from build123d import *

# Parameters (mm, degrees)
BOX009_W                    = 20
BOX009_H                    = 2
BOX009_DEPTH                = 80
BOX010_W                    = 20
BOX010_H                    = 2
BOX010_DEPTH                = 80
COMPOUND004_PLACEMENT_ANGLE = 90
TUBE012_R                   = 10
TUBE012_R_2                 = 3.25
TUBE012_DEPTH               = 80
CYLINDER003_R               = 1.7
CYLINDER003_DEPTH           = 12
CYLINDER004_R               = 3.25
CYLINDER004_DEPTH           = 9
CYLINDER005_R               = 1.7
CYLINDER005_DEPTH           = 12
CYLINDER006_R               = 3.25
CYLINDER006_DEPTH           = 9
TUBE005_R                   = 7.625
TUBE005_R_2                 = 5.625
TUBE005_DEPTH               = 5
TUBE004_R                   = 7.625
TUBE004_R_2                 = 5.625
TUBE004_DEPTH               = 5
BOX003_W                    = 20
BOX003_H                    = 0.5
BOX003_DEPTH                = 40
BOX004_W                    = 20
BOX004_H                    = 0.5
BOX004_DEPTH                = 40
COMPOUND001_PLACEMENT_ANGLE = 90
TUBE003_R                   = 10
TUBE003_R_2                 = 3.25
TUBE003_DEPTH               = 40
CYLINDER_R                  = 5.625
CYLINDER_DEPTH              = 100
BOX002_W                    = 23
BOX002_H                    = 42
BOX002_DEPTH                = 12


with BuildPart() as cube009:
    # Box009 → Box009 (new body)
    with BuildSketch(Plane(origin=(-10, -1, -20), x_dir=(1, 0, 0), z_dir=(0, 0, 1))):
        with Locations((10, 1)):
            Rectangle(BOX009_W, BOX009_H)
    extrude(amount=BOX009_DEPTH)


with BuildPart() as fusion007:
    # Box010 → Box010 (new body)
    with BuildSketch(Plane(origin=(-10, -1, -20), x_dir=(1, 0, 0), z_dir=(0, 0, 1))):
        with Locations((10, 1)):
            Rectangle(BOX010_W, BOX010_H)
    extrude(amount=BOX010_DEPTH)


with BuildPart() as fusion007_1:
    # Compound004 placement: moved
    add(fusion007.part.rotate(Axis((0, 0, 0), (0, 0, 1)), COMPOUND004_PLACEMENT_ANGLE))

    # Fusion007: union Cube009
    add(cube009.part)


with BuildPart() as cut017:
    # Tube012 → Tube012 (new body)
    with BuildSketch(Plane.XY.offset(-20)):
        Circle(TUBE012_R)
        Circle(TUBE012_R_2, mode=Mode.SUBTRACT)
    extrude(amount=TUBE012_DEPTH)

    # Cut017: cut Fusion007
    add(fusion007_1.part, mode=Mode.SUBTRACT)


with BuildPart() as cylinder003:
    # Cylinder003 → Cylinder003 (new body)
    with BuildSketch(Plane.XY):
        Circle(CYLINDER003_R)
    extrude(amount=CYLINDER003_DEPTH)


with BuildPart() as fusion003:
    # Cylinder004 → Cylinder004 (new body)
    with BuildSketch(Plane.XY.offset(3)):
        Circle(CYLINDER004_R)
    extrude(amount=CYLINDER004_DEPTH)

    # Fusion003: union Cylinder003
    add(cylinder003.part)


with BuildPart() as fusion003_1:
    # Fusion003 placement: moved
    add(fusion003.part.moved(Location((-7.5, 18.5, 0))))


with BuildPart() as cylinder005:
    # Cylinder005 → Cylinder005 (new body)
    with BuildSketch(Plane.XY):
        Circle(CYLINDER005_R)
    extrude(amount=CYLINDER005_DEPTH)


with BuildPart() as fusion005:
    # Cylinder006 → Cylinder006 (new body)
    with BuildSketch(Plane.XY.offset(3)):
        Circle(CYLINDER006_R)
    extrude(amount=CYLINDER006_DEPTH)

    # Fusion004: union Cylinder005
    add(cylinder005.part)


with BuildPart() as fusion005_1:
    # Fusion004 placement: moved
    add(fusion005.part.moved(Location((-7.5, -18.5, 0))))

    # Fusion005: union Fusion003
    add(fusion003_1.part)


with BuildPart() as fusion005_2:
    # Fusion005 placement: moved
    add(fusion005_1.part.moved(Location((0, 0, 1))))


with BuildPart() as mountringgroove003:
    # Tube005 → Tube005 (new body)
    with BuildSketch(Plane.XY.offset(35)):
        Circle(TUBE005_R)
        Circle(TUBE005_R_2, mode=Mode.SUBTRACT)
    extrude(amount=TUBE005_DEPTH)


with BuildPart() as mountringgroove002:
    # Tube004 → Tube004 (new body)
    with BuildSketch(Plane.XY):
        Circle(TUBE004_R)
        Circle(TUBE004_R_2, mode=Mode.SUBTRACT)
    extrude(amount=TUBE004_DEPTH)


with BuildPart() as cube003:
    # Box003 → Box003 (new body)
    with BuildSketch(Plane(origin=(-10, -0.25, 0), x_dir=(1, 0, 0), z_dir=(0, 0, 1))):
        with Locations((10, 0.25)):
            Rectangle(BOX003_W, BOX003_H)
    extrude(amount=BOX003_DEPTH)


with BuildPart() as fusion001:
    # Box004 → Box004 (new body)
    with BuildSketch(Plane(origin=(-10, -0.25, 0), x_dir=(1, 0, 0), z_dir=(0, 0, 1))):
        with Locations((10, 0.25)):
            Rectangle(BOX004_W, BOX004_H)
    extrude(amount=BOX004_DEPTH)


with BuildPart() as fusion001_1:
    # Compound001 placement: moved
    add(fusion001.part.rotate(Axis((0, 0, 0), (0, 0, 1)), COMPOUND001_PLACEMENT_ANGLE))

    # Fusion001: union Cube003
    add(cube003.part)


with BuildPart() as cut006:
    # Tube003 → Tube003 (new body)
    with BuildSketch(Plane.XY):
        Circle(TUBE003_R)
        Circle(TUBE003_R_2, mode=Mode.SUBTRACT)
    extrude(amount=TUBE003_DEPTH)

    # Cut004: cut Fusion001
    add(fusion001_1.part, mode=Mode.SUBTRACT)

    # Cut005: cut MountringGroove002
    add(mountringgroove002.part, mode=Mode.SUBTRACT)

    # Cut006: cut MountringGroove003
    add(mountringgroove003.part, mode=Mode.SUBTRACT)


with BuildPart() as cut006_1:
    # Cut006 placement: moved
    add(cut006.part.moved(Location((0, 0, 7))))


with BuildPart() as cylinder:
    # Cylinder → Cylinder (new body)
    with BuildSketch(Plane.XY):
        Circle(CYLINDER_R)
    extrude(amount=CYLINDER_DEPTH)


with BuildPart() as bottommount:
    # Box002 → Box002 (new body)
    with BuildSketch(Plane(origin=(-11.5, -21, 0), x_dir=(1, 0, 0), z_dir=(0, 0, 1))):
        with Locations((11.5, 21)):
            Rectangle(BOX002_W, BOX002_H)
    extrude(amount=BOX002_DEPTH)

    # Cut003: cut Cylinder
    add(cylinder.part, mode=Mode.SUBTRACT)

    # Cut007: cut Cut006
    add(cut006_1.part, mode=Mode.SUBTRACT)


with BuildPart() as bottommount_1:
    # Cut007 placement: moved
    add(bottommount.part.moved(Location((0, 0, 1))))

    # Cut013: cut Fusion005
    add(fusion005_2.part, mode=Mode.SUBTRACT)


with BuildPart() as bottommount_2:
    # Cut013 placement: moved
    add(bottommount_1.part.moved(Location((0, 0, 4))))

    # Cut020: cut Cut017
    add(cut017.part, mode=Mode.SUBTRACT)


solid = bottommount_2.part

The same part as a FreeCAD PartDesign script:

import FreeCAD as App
import Part
import Sketcher

V = App.Vector

doc = App.newDocument("Part")
body = doc.addObject("PartDesign::Body", "Body")

sketch1 = doc.addObject("Sketcher::SketchObject", "Sketch")
body.addObject(sketch1)
sketch1.AttachmentSupport = (doc.XY_Plane, [""])
sketch1.MapMode = "FlatFace"
sketch1.AttachmentOffset = App.Placement(V(0, 0, -20), App.Rotation())
sketch1.addGeometry([
    Part.LineSegment(V(-10, 1, 0), V(-10, -1, 0)),
    Part.LineSegment(V(-10, -1, 0), V(10, -1, 0)),
    Part.LineSegment(V(10, -1, 0), V(10, 1, 0)),
    Part.LineSegment(V(10, 1, 0), V(-10, 1, 0)),
], False)
sketch1.addConstraint([
    Sketcher.Constraint("Coincident", 0, 2, 1, 1),
    Sketcher.Constraint("Coincident", 1, 2, 2, 1),
    Sketcher.Constraint("Coincident", 2, 2, 3, 1),
    Sketcher.Constraint("Coincident", 3, 2, 0, 1),
    Sketcher.Constraint("Vertical", 0),
    Sketcher.Constraint("Horizontal", 1),
    Sketcher.Constraint("Vertical", 2),
    Sketcher.Constraint("Horizontal", 3),
    Sketcher.Constraint("Symmetric", 0, 2, 2, 2, -1, 1),
    Sketcher.Constraint("DistanceX", 1, 1, 1, 2, 20.0),
    Sketcher.Constraint("DistanceY", 0, 2, 0, 1, 2.0),
])
pad1 = doc.addObject("PartDesign::Pad", "Pad")
body.addObject(pad1)
pad1.Profile = sketch1
pad1.Length = 80
body2 = doc.addObject("PartDesign::Body", "Body001")

sketch2 = doc.addObject("Sketcher::SketchObject", "Sketch001")
body2.addObject(sketch2)
sketch2.AttachmentSupport = (doc.getObject("XY_Plane001"), [""])
sketch2.MapMode = "FlatFace"
sketch2.AttachmentOffset = App.Placement(V(0, 0, -20), App.Rotation())
sketch2.addGeometry([
    Part.LineSegment(V(-10, 1, 0), V(-10, -1, 0)),
    Part.LineSegment(V(-10, -1, 0), V(10, -1, 0)),
    Part.LineSegment(V(10, -1, 0), V(10, 1, 0)),
    Part.LineSegment(V(10, 1, 0), V(-10, 1, 0)),
], False)
sketch2.addConstraint([
    Sketcher.Constraint("Coincident", 0, 2, 1, 1),
    Sketcher.Constraint("Coincident", 1, 2, 2, 1),
    Sketcher.Constraint("Coincident", 2, 2, 3, 1),
    Sketcher.Constraint("Coincident", 3, 2, 0, 1),
    Sketcher.Constraint("Vertical", 0),
    Sketcher.Constraint("Horizontal", 1),
    Sketcher.Constraint("Vertical", 2),
    Sketcher.Constraint("Horizontal", 3),
    Sketcher.Constraint("Symmetric", 0, 2, 2, 2, -1, 1),
    Sketcher.Constraint("DistanceX", 1, 1, 1, 2, 20.0),
    Sketcher.Constraint("DistanceY", 0, 2, 0, 1, 2.0),
])
pad2 = doc.addObject("PartDesign::Pad", "Pad001")
body2.addObject(pad2)
pad2.Profile = sketch2
pad2.Length = 80
body3 = doc.addObject("PartDesign::Body", "Body002")
doc.recompute()

body2.Placement = App.Placement(V(0, 0, 0), App.Rotation(V(0, 0, 1), 90))
boolean = doc.addObject("PartDesign::Boolean", "Boolean")
body3.addObject(boolean)
boolean.Type = "Fuse"
boolean.addObjects([body2])
doc.recompute()

boolean2 = doc.addObject("PartDesign::Boolean", "Boolean001")
body3.addObject(boolean2)
boolean2.Type = "Fuse"
boolean2.addObjects([body])
body4 = doc.addObject("PartDesign::Body", "Body003")
body4.AllowCompound = True

sketch3 = doc.addObject("Sketcher::SketchObject", "Sketch002")
body4.addObject(sketch3)
sketch3.AttachmentSupport = (doc.getObject("XY_Plane003"), [""])
sketch3.MapMode = "FlatFace"
sketch3.AttachmentOffset = App.Placement(V(0, 0, -20), App.Rotation())
sketch3.addGeometry([
    Part.Circle(V(0, 0, 0), V(0, 0, 1), 10),
    Part.Circle(V(0, 0, 0), V(0, 0, 1), 3.25),
], False)
sketch3.addConstraint([
    Sketcher.Constraint("Coincident", 0, 3, -1, 1),
    Sketcher.Constraint("Coincident", 1, 3, -1, 1),
    Sketcher.Constraint("Diameter", 0, 20.0),
    Sketcher.Constraint("Diameter", 1, 6.5),
])
pad3 = doc.addObject("PartDesign::Pad", "Pad002")
body4.addObject(pad3)
pad3.Profile = sketch3
pad3.Length = 80
doc.recompute()

boolean3 = doc.addObject("PartDesign::Boolean", "Boolean002")
body4.addObject(boolean3)
boolean3.Type = "Cut"
boolean3.addObjects([body3])
body5 = doc.addObject("PartDesign::Body", "Body004")

sketch4 = doc.addObject("Sketcher::SketchObject", "Sketch003")
body5.addObject(sketch4)
sketch4.AttachmentSupport = (doc.getObject("XY_Plane004"), [""])
sketch4.MapMode = "FlatFace"
sketch4.addGeometry(Part.Circle(V(0, 0, 0), V(0, 0, 1), 1.7), False)
sketch4.addConstraint([
    Sketcher.Constraint("Coincident", 0, 3, -1, 1),
    Sketcher.Constraint("Diameter", 0, 3.4),
])
pad4 = doc.addObject("PartDesign::Pad", "Pad003")
body5.addObject(pad4)
pad4.Profile = sketch4
pad4.Length = 12
body6 = doc.addObject("PartDesign::Body", "Body005")

sketch5 = doc.addObject("Sketcher::SketchObject", "Sketch004")
body6.addObject(sketch5)
sketch5.AttachmentSupport = (doc.getObject("XY_Plane005"), [""])
sketch5.MapMode = "FlatFace"
sketch5.AttachmentOffset = App.Placement(V(0, 0, 3), App.Rotation())
sketch5.addGeometry(Part.Circle(V(0, 0, 0), V(0, 0, 1), 3.25), False)
sketch5.addConstraint([
    Sketcher.Constraint("Coincident", 0, 3, -1, 1),
    Sketcher.Constraint("Diameter", 0, 6.5),
])
pad5 = doc.addObject("PartDesign::Pad", "Pad004")
body6.addObject(pad5)
pad5.Profile = sketch5
pad5.Length = 9
doc.recompute()

boolean4 = doc.addObject("PartDesign::Boolean", "Boolean003")
body6.addObject(boolean4)
boolean4.Type = "Fuse"
boolean4.addObjects([body5])
body7 = doc.addObject("PartDesign::Body", "Body006")
doc.recompute()

body6.Placement = App.Placement(V(-7.5, 18.5, 0), App.Rotation(V(0, 0, 1), 0))
boolean5 = doc.addObject("PartDesign::Boolean", "Boolean004")
body7.addObject(boolean5)
boolean5.Type = "Fuse"
boolean5.addObjects([body6])
body8 = doc.addObject("PartDesign::Body", "Body007")

sketch6 = doc.addObject("Sketcher::SketchObject", "Sketch005")
body8.addObject(sketch6)
sketch6.AttachmentSupport = (doc.getObject("XY_Plane007"), [""])
sketch6.MapMode = "FlatFace"
sketch6.addGeometry(Part.Circle(V(0, 0, 0), V(0, 0, 1), 1.7), False)
sketch6.addConstraint([
    Sketcher.Constraint("Coincident", 0, 3, -1, 1),
    Sketcher.Constraint("Diameter", 0, 3.4),
])
pad6 = doc.addObject("PartDesign::Pad", "Pad005")
body8.addObject(pad6)
pad6.Profile = sketch6
pad6.Length = 12
body9 = doc.addObject("PartDesign::Body", "Body008")

sketch7 = doc.addObject("Sketcher::SketchObject", "Sketch006")
body9.addObject(sketch7)
sketch7.AttachmentSupport = (doc.getObject("XY_Plane008"), [""])
sketch7.MapMode = "FlatFace"
sketch7.AttachmentOffset = App.Placement(V(0, 0, 3), App.Rotation())
sketch7.addGeometry(Part.Circle(V(0, 0, 0), V(0, 0, 1), 3.25), False)
sketch7.addConstraint([
    Sketcher.Constraint("Coincident", 0, 3, -1, 1),
    Sketcher.Constraint("Diameter", 0, 6.5),
])
pad7 = doc.addObject("PartDesign::Pad", "Pad006")
body9.addObject(pad7)
pad7.Profile = sketch7
pad7.Length = 9
doc.recompute()

boolean6 = doc.addObject("PartDesign::Boolean", "Boolean005")
body9.addObject(boolean6)
boolean6.Type = "Fuse"
boolean6.addObjects([body8])
body10 = doc.addObject("PartDesign::Body", "Body009")
body10.AllowCompound = True
doc.recompute()

body9.Placement = App.Placement(V(-7.5, -18.5, 0), App.Rotation(V(0, 0, 1), 0))
boolean7 = doc.addObject("PartDesign::Boolean", "Boolean006")
body10.addObject(boolean7)
boolean7.Type = "Fuse"
boolean7.addObjects([body9])
doc.recompute()

boolean8 = doc.addObject("PartDesign::Boolean", "Boolean007")
body10.addObject(boolean8)
boolean8.Type = "Fuse"
boolean8.addObjects([body7])
body11 = doc.addObject("PartDesign::Body", "Body010")
body11.AllowCompound = True
doc.recompute()

body10.Placement = App.Placement(V(0, 0, 1), App.Rotation(V(0, 0, 1), 0))
boolean9 = doc.addObject("PartDesign::Boolean", "Boolean008")
body11.addObject(boolean9)
boolean9.Type = "Fuse"
boolean9.addObjects([body10])
body12 = doc.addObject("PartDesign::Body", "Body011")

sketch8 = doc.addObject("Sketcher::SketchObject", "Sketch007")
body12.addObject(sketch8)
sketch8.AttachmentSupport = (doc.getObject("XY_Plane011"), [""])
sketch8.MapMode = "FlatFace"
sketch8.AttachmentOffset = App.Placement(V(0, 0, 35), App.Rotation())
sketch8.addGeometry([
    Part.Circle(V(0, 0, 0), V(0, 0, 1), 7.625),
    Part.Circle(V(0, 0, 0), V(0, 0, 1), 5.625),
], False)
sketch8.addConstraint([
    Sketcher.Constraint("Coincident", 0, 3, -1, 1),
    Sketcher.Constraint("Coincident", 1, 3, -1, 1),
    Sketcher.Constraint("Diameter", 0, 15.25),
    Sketcher.Constraint("Diameter", 1, 11.25),
])
pad8 = doc.addObject("PartDesign::Pad", "Pad007")
body12.addObject(pad8)
pad8.Profile = sketch8
pad8.Length = 5
body13 = doc.addObject("PartDesign::Body", "Body012")

sketch9 = doc.addObject("Sketcher::SketchObject", "Sketch008")
body13.addObject(sketch9)
sketch9.AttachmentSupport = (doc.getObject("XY_Plane012"), [""])
sketch9.MapMode = "FlatFace"
sketch9.addGeometry([
    Part.Circle(V(0, 0, 0), V(0, 0, 1), 7.625),
    Part.Circle(V(0, 0, 0), V(0, 0, 1), 5.625),
], False)
sketch9.addConstraint([
    Sketcher.Constraint("Coincident", 0, 3, -1, 1),
    Sketcher.Constraint("Coincident", 1, 3, -1, 1),
    Sketcher.Constraint("Diameter", 0, 15.25),
    Sketcher.Constraint("Diameter", 1, 11.25),
])
pad9 = doc.addObject("PartDesign::Pad", "Pad008")
body13.addObject(pad9)
pad9.Profile = sketch9
pad9.Length = 5
body14 = doc.addObject("PartDesign::Body", "Body013")

sketch10 = doc.addObject("Sketcher::SketchObject", "Sketch009")
body14.addObject(sketch10)
sketch10.AttachmentSupport = (doc.getObject("XY_Plane013"), [""])
sketch10.MapMode = "FlatFace"
sketch10.addGeometry([
    Part.LineSegment(V(-10, 0.25, 0), V(-10, -0.25, 0)),
    Part.LineSegment(V(-10, -0.25, 0), V(10, -0.25, 0)),
    Part.LineSegment(V(10, -0.25, 0), V(10, 0.25, 0)),
    Part.LineSegment(V(10, 0.25, 0), V(-10, 0.25, 0)),
], False)
sketch10.addConstraint([
    Sketcher.Constraint("Coincident", 0, 2, 1, 1),
    Sketcher.Constraint("Coincident", 1, 2, 2, 1),
    Sketcher.Constraint("Coincident", 2, 2, 3, 1),
    Sketcher.Constraint("Coincident", 3, 2, 0, 1),
    Sketcher.Constraint("Vertical", 0),
    Sketcher.Constraint("Horizontal", 1),
    Sketcher.Constraint("Vertical", 2),
    Sketcher.Constraint("Horizontal", 3),
    Sketcher.Constraint("Symmetric", 0, 2, 2, 2, -1, 1),
    Sketcher.Constraint("DistanceX", 1, 1, 1, 2, 20.0),
    Sketcher.Constraint("DistanceY", 0, 2, 0, 1, 0.5),
])
pad10 = doc.addObject("PartDesign::Pad", "Pad009")
body14.addObject(pad10)
pad10.Profile = sketch10
pad10.Length = 40
body15 = doc.addObject("PartDesign::Body", "Body014")

sketch11 = doc.addObject("Sketcher::SketchObject", "Sketch010")
body15.addObject(sketch11)
sketch11.AttachmentSupport = (doc.getObject("XY_Plane014"), [""])
sketch11.MapMode = "FlatFace"
sketch11.addGeometry([
    Part.LineSegment(V(-10, 0.25, 0), V(-10, -0.25, 0)),
    Part.LineSegment(V(-10, -0.25, 0), V(10, -0.25, 0)),
    Part.LineSegment(V(10, -0.25, 0), V(10, 0.25, 0)),
    Part.LineSegment(V(10, 0.25, 0), V(-10, 0.25, 0)),
], False)
sketch11.addConstraint([
    Sketcher.Constraint("Coincident", 0, 2, 1, 1),
    Sketcher.Constraint("Coincident", 1, 2, 2, 1),
    Sketcher.Constraint("Coincident", 2, 2, 3, 1),
    Sketcher.Constraint("Coincident", 3, 2, 0, 1),
    Sketcher.Constraint("Vertical", 0),
    Sketcher.Constraint("Horizontal", 1),
    Sketcher.Constraint("Vertical", 2),
    Sketcher.Constraint("Horizontal", 3),
    Sketcher.Constraint("Symmetric", 0, 2, 2, 2, -1, 1),
    Sketcher.Constraint("DistanceX", 1, 1, 1, 2, 20.0),
    Sketcher.Constraint("DistanceY", 0, 2, 0, 1, 0.5),
])
pad11 = doc.addObject("PartDesign::Pad", "Pad010")
body15.addObject(pad11)
pad11.Profile = sketch11
pad11.Length = 40
body16 = doc.addObject("PartDesign::Body", "Body015")
doc.recompute()

body15.Placement = App.Placement(V(0, 0, 0), App.Rotation(V(0, 0, 1), 90))
boolean10 = doc.addObject("PartDesign::Boolean", "Boolean009")
body16.addObject(boolean10)
boolean10.Type = "Fuse"
boolean10.addObjects([body15])
doc.recompute()

boolean11 = doc.addObject("PartDesign::Boolean", "Boolean010")
body16.addObject(boolean11)
boolean11.Type = "Fuse"
boolean11.addObjects([body14])
body17 = doc.addObject("PartDesign::Body", "Body016")
body17.AllowCompound = True

sketch12 = doc.addObject("Sketcher::SketchObject", "Sketch011")
body17.addObject(sketch12)
sketch12.AttachmentSupport = (doc.getObject("XY_Plane016"), [""])
sketch12.MapMode = "FlatFace"
sketch12.addGeometry([
    Part.Circle(V(0, 0, 0), V(0, 0, 1), 10),
    Part.Circle(V(0, 0, 0), V(0, 0, 1), 3.25),
], False)
sketch12.addConstraint([
    Sketcher.Constraint("Coincident", 0, 3, -1, 1),
    Sketcher.Constraint("Coincident", 1, 3, -1, 1),
    Sketcher.Constraint("Diameter", 0, 20.0),
    Sketcher.Constraint("Diameter", 1, 6.5),
])
pad12 = doc.addObject("PartDesign::Pad", "Pad011")
body17.addObject(pad12)
pad12.Profile = sketch12
pad12.Length = 40
doc.recompute()

boolean12 = doc.addObject("PartDesign::Boolean", "Boolean011")
body17.addObject(boolean12)
boolean12.Type = "Cut"
boolean12.addObjects([body16])
doc.recompute()

boolean13 = doc.addObject("PartDesign::Boolean", "Boolean012")
body17.addObject(boolean13)
boolean13.Type = "Cut"
boolean13.addObjects([body13])
doc.recompute()

boolean14 = doc.addObject("PartDesign::Boolean", "Boolean013")
body17.addObject(boolean14)
boolean14.Type = "Cut"
boolean14.addObjects([body12])
body18 = doc.addObject("PartDesign::Body", "Body017")
body18.AllowCompound = True
doc.recompute()

body17.Placement = App.Placement(V(0, 0, 7), App.Rotation(V(0, 0, 1), 0))
boolean15 = doc.addObject("PartDesign::Boolean", "Boolean014")
body18.addObject(boolean15)
boolean15.Type = "Fuse"
boolean15.addObjects([body17])
body19 = doc.addObject("PartDesign::Body", "Body018")

sketch13 = doc.addObject("Sketcher::SketchObject", "Sketch012")
body19.addObject(sketch13)
sketch13.AttachmentSupport = (doc.getObject("XY_Plane018"), [""])
sketch13.MapMode = "FlatFace"
sketch13.addGeometry(Part.Circle(V(0, 0, 0), V(0, 0, 1), 5.625), False)
sketch13.addConstraint([
    Sketcher.Constraint("Coincident", 0, 3, -1, 1),
    Sketcher.Constraint("Diameter", 0, 11.25),
])
pad13 = doc.addObject("PartDesign::Pad", "Pad012")
body19.addObject(pad13)
pad13.Profile = sketch13
pad13.Length = 100
body20 = doc.addObject("PartDesign::Body", "Body019")

sketch14 = doc.addObject("Sketcher::SketchObject", "Sketch013")
body20.addObject(sketch14)
sketch14.AttachmentSupport = (doc.getObject("XY_Plane019"), [""])
sketch14.MapMode = "FlatFace"
sketch14.addGeometry([
    Part.LineSegment(V(-11.5, 21, 0), V(-11.5, -21, 0)),
    Part.LineSegment(V(-11.5, -21, 0), V(11.5, -21, 0)),
    Part.LineSegment(V(11.5, -21, 0), V(11.5, 21, 0)),
    Part.LineSegment(V(11.5, 21, 0), V(-11.5, 21, 0)),
], False)
sketch14.addConstraint([
    Sketcher.Constraint("Coincident", 0, 2, 1, 1),
    Sketcher.Constraint("Coincident", 1, 2, 2, 1),
    Sketcher.Constraint("Coincident", 2, 2, 3, 1),
    Sketcher.Constraint("Coincident", 3, 2, 0, 1),
    Sketcher.Constraint("Vertical", 0),
    Sketcher.Constraint("Horizontal", 1),
    Sketcher.Constraint("Vertical", 2),
    Sketcher.Constraint("Horizontal", 3),
    Sketcher.Constraint("Symmetric", 0, 2, 2, 2, -1, 1),
    Sketcher.Constraint("DistanceX", 1, 1, 1, 2, 23.0),
    Sketcher.Constraint("DistanceY", 0, 2, 0, 1, 42.0),
])
pad14 = doc.addObject("PartDesign::Pad", "Pad013")
body20.addObject(pad14)
pad14.Profile = sketch14
pad14.Length = 12
doc.recompute()

boolean16 = doc.addObject("PartDesign::Boolean", "Boolean015")
body20.addObject(boolean16)
boolean16.Type = "Cut"
boolean16.addObjects([body19])
doc.recompute()

boolean17 = doc.addObject("PartDesign::Boolean", "Boolean016")
body20.addObject(boolean17)
boolean17.Type = "Cut"
boolean17.addObjects([body18])
body21 = doc.addObject("PartDesign::Body", "Body020")
doc.recompute()

body20.Placement = App.Placement(V(0, 0, 1), App.Rotation(V(0, 0, 1), 0))
boolean18 = doc.addObject("PartDesign::Boolean", "Boolean017")
body21.addObject(boolean18)
boolean18.Type = "Fuse"
boolean18.addObjects([body20])
doc.recompute()

boolean19 = doc.addObject("PartDesign::Boolean", "Boolean018")
body21.addObject(boolean19)
boolean19.Type = "Cut"
boolean19.addObjects([body11])
body22 = doc.addObject("PartDesign::Body", "Body021")
doc.recompute()

body21.Placement = App.Placement(V(0, 0, 4), App.Rotation(V(0, 0, 1), 0))
boolean20 = doc.addObject("PartDesign::Boolean", "Boolean019")
body22.addObject(boolean20)
boolean20.Type = "Fuse"
boolean20.addObjects([body21])
doc.recompute()

boolean21 = doc.addObject("PartDesign::Boolean", "Boolean020")
body22.addObject(boolean21)
boolean21.Type = "Cut"
boolean21.addObjects([body4])

doc.recompute()
